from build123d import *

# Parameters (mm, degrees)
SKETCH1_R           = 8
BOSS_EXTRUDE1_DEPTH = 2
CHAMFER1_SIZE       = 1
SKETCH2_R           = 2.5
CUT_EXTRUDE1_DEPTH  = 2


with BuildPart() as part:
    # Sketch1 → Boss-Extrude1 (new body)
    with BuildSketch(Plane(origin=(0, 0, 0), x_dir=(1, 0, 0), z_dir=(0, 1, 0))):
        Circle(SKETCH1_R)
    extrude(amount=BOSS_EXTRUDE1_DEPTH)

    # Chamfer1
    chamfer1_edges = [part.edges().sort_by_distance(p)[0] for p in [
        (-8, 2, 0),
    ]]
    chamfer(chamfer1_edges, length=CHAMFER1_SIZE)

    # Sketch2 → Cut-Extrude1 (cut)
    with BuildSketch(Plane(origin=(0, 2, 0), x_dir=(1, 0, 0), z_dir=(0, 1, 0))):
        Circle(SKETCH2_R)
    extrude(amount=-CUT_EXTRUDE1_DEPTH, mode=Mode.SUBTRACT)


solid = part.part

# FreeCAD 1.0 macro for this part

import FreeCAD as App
import Part
import Sketcher

V = App.Vector


def edges_at(feature, points):
    """Names of the edges that pass closest to the given points."""
    edges = feature.Shape.Edges
    near = lambda p: min(range(len(edges)), key=lambda i: edges[i].distToShape(Part.Vertex(*p))[0])
    return sorted({f"Edge{near(p) + 1}" for p in points})

doc = App.newDocument("Part")
body = doc.addObject("PartDesign::Body", "Body")

# Sketch on XZ plane
sketch1 = body.newObject("Sketcher::SketchObject", "Sketch")
sketch1.AttachmentSupport = (doc.getObject("XZ_Plane"), [""])
sketch1.MapMode = "FlatFace"
sketch1.addGeometry(Part.Circle(V(0, 0, 0), V(0, 0, 1), 8), False)
sketch1.addConstraint([
    Sketcher.Constraint("Coincident", 0, 3, -1, 1),
    Sketcher.Constraint("Diameter", 0, 16.0),
])
pad1 = body.newObject("PartDesign::Pad", "Pad")
pad1.Profile = sketch1
pad1.Length = 2
pad1.Reversed = True
doc.recompute()

chamfer = body.newObject("PartDesign::Chamfer", "Chamfer")
chamfer.Base = (pad1, edges_at(pad1, [(-8, 2, 0)]))
chamfer.Size = 1

# Sketch on XZ plane
sketch2 = body.newObject("Sketcher::SketchObject", "Sketch001")
sketch2.AttachmentSupport = (doc.getObject("XZ_Plane"), [""])
sketch2.MapMode = "FlatFace"
sketch2.AttachmentOffset = App.Placement(V(0, 0, -2), App.Rotation())
sketch2.addGeometry(Part.Circle(V(0, 0, 0), V(0, 0, 1), 2.5), False)
sketch2.addConstraint([
    Sketcher.Constraint("Coincident", 0, 3, -1, 1),
    Sketcher.Constraint("Diameter", 0, 5.0),
])
pocket1 = body.newObject("PartDesign::Pocket", "Pocket")
pocket1.Profile = sketch2
pocket1.Length = 2
pocket1.Reversed = True

doc.recompute()
